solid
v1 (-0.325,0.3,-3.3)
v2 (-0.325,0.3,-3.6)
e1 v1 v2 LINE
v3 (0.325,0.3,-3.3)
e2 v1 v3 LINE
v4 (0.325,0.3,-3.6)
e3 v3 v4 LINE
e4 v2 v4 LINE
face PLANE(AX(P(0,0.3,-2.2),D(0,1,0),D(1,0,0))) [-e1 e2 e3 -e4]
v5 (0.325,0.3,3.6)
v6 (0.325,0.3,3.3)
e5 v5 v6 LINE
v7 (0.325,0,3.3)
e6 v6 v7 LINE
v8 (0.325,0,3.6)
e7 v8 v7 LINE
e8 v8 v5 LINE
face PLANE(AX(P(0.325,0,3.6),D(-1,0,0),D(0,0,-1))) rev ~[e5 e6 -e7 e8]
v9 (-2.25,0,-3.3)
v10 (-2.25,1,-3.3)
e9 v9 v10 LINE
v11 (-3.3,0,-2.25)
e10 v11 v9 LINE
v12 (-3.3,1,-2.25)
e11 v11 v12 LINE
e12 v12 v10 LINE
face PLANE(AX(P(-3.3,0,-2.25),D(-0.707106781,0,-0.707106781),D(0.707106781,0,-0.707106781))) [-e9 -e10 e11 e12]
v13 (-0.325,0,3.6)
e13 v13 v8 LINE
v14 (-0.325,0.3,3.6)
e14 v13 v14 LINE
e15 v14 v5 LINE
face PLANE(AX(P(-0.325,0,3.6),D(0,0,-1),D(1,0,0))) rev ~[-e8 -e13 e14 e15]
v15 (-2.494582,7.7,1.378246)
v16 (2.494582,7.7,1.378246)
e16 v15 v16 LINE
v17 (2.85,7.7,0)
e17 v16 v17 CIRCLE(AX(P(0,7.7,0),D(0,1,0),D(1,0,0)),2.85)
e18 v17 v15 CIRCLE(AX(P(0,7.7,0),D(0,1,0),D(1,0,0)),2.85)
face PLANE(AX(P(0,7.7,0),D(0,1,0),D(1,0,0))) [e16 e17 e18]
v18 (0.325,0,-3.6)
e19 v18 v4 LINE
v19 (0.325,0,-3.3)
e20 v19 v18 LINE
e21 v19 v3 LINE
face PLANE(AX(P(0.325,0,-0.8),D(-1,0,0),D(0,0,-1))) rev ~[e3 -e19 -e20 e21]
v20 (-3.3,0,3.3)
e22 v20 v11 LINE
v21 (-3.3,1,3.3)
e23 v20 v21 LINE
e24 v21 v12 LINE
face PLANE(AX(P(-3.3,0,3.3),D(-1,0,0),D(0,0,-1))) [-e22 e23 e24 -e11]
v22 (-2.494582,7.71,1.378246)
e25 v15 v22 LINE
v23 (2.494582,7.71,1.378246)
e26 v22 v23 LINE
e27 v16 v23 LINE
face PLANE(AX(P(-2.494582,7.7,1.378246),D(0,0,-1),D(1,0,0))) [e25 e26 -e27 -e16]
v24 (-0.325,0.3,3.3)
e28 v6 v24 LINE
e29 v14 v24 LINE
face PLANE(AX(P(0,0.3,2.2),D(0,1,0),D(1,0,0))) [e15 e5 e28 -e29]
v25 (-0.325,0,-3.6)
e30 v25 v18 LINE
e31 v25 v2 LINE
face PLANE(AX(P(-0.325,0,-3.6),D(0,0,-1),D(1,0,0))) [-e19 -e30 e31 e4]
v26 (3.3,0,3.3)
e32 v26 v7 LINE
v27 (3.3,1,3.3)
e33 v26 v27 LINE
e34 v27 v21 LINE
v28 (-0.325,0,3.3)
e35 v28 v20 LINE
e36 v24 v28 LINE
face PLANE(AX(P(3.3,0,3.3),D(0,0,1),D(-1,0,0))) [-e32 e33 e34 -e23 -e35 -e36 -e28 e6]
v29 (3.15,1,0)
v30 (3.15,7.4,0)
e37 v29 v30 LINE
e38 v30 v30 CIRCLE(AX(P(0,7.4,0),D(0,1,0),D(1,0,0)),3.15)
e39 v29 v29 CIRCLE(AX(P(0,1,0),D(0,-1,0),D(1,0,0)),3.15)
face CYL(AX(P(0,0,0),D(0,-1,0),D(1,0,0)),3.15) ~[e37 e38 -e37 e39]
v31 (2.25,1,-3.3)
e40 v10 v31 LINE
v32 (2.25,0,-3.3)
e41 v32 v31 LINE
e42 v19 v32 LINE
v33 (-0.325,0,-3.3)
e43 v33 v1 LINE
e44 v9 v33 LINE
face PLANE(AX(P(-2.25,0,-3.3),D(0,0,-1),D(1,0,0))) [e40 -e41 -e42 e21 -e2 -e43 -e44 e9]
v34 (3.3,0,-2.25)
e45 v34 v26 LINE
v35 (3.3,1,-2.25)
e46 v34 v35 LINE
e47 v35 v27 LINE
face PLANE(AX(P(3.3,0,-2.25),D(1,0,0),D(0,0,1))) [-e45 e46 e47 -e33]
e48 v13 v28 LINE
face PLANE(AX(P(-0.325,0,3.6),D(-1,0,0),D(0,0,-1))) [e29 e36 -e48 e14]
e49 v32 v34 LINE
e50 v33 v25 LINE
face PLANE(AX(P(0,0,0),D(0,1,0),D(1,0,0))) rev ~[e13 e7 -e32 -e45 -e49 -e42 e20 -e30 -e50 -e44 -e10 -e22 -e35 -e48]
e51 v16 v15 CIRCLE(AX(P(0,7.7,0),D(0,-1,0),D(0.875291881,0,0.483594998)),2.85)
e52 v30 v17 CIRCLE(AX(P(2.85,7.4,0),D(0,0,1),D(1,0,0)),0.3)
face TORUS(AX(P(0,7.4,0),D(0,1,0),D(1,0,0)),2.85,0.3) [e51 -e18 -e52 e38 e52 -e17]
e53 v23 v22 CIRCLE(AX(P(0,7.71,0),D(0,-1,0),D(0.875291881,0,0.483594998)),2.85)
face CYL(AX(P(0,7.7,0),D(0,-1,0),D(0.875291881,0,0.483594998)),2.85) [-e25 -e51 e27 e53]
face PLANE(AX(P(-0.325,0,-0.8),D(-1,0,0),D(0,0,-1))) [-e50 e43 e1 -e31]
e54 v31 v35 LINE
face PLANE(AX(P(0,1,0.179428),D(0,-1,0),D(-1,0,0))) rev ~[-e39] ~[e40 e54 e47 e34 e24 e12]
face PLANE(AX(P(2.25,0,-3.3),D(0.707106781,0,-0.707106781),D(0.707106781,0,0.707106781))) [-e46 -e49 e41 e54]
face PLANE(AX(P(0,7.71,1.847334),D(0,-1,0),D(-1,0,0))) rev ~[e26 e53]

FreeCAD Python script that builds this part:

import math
import FreeCAD as App
import Part
import Sketcher
from FreeCAD import Vector
Q = App.Units.Quantity


def edges_at(feature, points):
    """Names of the edges that pass closest to the given points."""
    edges = feature.Shape.Edges
    near = lambda p: min(range(len(edges)), key=lambda i: edges[i].distToShape(Part.Vertex(*p))[0])
    return sorted({f"Edge{near(p) + 1}" for p in points})


def add_polygon(sketch, points):
    """Adds a closed chain of lines whose ends are joined by coincident constraints."""
    first, n = sketch.GeometryCount, len(points)
    for a, b in zip(points, points[1:] + points[:1]):
        sketch.addGeometry(Part.LineSegment(App.Vector(*a, 0), App.Vector(*b, 0)), False)
    for i in range(n):
        sketch.addConstraint(Sketcher.Constraint("Coincident", first + i, 2, first + (i + 1) % n, 1))

doc = App.newDocument("Part")
params = doc.addObject("Spreadsheet::Sheet", "Params")
for row, (alias, value) in enumerate([
    ("sketch1_width", "6.6 mm"),
    ("sketch1_width2", "4.5 mm"),
    ("sketch1_height", "5.55 mm"),
    ("pad1_length", "1 mm"),
    ("sketch2_diameter", "6.3 mm"),
    ("pad2_length", "7.7 mm"),
    ("fillet_radius", "0.3 mm"),
    ("sketch3_height", "2.8 mm"),
    ("sketch3_width", "0.65 mm"),
    ("pad3_length", "0.3 mm"),
    ("sketch4_radius", "2.85 mm"),
    ("pad4_length", "0.01 mm"),
], start=1):
    params.set(f"A{row}", alias)
    params.set(f"B{row}", "=" + value)
    params.setAlias(f"B{row}", alias)

body = doc.addObject("PartDesign::Body", "Body")

sketch1 = body.newObject("Sketcher::SketchObject", "Sketch")
sketch1.AttachmentSupport = (doc.getObject("XZ_Plane"), [""])
sketch1.MapMode = "FlatFace"
add_polygon(sketch1, [(-3.3, 3.3), (3.3, 3.3), (3.3, -2.25), (2.25, -3.3), (-2.25, -3.3), (-3.3, -2.25)])
sketch1.addConstraint(Sketcher.Constraint("Horizontal", 0))
sketch1.addConstraint(Sketcher.Constraint("Vertical", 1))
sketch1.addConstraint(Sketcher.Constraint("Horizontal", 3))
sketch1.addConstraint(Sketcher.Constraint("Vertical", 5))
sketch1.addConstraint(Sketcher.Constraint("Symmetric", 1, 2, 4, 2, -2))
sketch1.addConstraint(Sketcher.Constraint("Perpendicular", 2, 4))
sketch1.addConstraint(Sketcher.Constraint("Equal", 2, 4))
sketch1.addConstraint(Sketcher.Constraint("DistanceX", 0, 1, 0, 2, Q("6.6 mm")))
sketch1.addConstraint(Sketcher.Constraint("DistanceX", 3, 2, 3, 1, Q("4.5 mm")))
sketch1.addConstraint(Sketcher.Constraint("DistanceY", 1, 2, 1, 1, Q("5.55 mm")))
sketch1.addConstraint(Sketcher.Constraint("DistanceY", -1, 1, 0, 2, Q("3.3 mm")))
sketch1.setExpression("Constraints[13]", "Params.sketch1_width")
sketch1.setExpression("Constraints[14]", "Params.sketch1_width2")
sketch1.setExpression("Constraints[15]", "Params.sketch1_height")
pad1 = body.newObject("PartDesign::Pad", "Pad")
pad1.Profile = sketch1
pad1.setExpression("Length", "Params.pad1_length")
pad1.Reversed = True

sketch2 = body.newObject("Sketcher::SketchObject", "Sketch001")
sketch2.AttachmentSupport = (doc.getObject("XZ_Plane"), [""])
sketch2.MapMode = "FlatFace"
sketch2.addGeometry(Part.Circle(Vector(0, 0, 0), Vector(0, 0, 1), 3.15), False)
sketch2.addConstraint(Sketcher.Constraint("Coincident", 0, 3, -1, 1))
sketch2.addConstraint(Sketcher.Constraint("Diameter", 0, Q("6.3 mm")))
sketch2.setExpression("Constraints[1]", "Params.sketch2_diameter")
pad2 = body.newObject("PartDesign::Pad", "Pad001")
pad2.Profile = sketch2
pad2.setExpression("Length", "Params.pad2_length")
pad2.Reversed = True
doc.recompute()

fillet = body.newObject("PartDesign::Fillet", "Fillet")
fillet.Base = (pad2, edges_at(pad2, [(-3.15, 7.7, 0)]))
fillet.setExpression("Radius", "Params.fillet_radius")

sketch3 = body.newObject("Sketcher::SketchObject", "Sketch002")
sketch3.AttachmentSupport = (doc.getObject("XZ_Plane"), [""])
sketch3.MapMode = "FlatFace"
add_polygon(sketch3, [(-0.325, -3.6), (-0.325, -0.8), (0.325, -0.8), (0.325, -3.6)])
add_polygon(sketch3, [(-0.325, 0.8), (-0.325, 3.6), (0.325, 3.6), (0.325, 0.8)])
sketch3.addConstraint(Sketcher.Constraint("Vertical", 0))
sketch3.addConstraint(Sketcher.Constraint("Horizontal", 1))
sketch3.addConstraint(Sketcher.Constraint("Vertical", 2))
sketch3.addConstraint(Sketcher.Constraint("Horizontal", 3))
sketch3.addConstraint(Sketcher.Constraint("Vertical", 4))
sketch3.addConstraint(Sketcher.Constraint("Horizontal", 5))
sketch3.addConstraint(Sketcher.Constraint("Vertical", 6))
sketch3.addConstraint(Sketcher.Constraint("Horizontal", 7))
sketch3.addConstraint(Sketcher.Constraint("Symmetric", 2, 2, 4, 2, -1, 1))
sketch3.addConstraint(Sketcher.Constraint("Symmetric", 0, 2, 6, 2, -1, 1))
sketch3.addConstraint(Sketcher.Constraint("Vertical", 3, 2, 4, 2))
sketch3.addConstraint(Sketcher.Constraint("DistanceY", 0, 1, 0, 2, Q("2.8 mm")))
sketch3.addConstraint(Sketcher.Constraint("DistanceX", 1, 1, 1, 2, Q("0.65 mm")))
sketch3.addConstraint(Sketcher.Constraint("DistanceY", 0, 2, -1, 1, Q("0.8 mm")))
sketch3.setExpression("Constraints[19]", "Params.sketch3_height")
sketch3.setExpression("Constraints[20]", "Params.sketch3_width")
pad3 = body.newObject("PartDesign::Pad", "Pad002")
pad3.Profile = sketch3
pad3.setExpression("Length", "Params.pad3_length")
pad3.Reversed = True

sketch4 = body.newObject("Sketcher::SketchObject", "Sketch003")
sketch4.AttachmentSupport = (doc.getObject("XZ_Plane"), [""])
sketch4.MapMode = "FlatFace"
sketch4.AttachmentOffset = App.Placement(Vector(0, 0, -7.7), App.Rotation())
sketch4.addGeometry(Part.LineSegment(Vector(2.494582, 1.378246, 0), Vector(-2.494582, 1.378246, 0)), False)
sketch4.addGeometry(Part.ArcOfCircle(Part.Circle(Vector(0, 0, 0), Vector(0, 0, 1), 2.85), math.radians(28.920461), math.radians(151.079539)), False)
sketch4.addConstraint(Sketcher.Constraint("Coincident", 0, 1, 1, 1))
sketch4.addConstraint(Sketcher.Constraint("Coincident", 1, 2, 0, 2))
sketch4.addConstraint(Sketcher.Constraint("Horizontal", 0))
sketch4.addConstraint(Sketcher.Constraint("Coincident", 1, 3, -1, 1))
sketch4.addConstraint(Sketcher.Constraint("Radius", 1, Q("2.85 mm")))
sketch4.addConstraint(Sketcher.Constraint("DistanceX", 0, 2, 0, 1, Q("4.989164 mm")))
sketch4.setExpression("Constraints[4]", "Params.sketch4_radius")
pad4 = body.newObject("PartDesign::Pad", "Pad003")
pad4.Profile = sketch4
pad4.setExpression("Length", "Params.pad4_length")
pad4.Reversed = True

doc.recompute()
